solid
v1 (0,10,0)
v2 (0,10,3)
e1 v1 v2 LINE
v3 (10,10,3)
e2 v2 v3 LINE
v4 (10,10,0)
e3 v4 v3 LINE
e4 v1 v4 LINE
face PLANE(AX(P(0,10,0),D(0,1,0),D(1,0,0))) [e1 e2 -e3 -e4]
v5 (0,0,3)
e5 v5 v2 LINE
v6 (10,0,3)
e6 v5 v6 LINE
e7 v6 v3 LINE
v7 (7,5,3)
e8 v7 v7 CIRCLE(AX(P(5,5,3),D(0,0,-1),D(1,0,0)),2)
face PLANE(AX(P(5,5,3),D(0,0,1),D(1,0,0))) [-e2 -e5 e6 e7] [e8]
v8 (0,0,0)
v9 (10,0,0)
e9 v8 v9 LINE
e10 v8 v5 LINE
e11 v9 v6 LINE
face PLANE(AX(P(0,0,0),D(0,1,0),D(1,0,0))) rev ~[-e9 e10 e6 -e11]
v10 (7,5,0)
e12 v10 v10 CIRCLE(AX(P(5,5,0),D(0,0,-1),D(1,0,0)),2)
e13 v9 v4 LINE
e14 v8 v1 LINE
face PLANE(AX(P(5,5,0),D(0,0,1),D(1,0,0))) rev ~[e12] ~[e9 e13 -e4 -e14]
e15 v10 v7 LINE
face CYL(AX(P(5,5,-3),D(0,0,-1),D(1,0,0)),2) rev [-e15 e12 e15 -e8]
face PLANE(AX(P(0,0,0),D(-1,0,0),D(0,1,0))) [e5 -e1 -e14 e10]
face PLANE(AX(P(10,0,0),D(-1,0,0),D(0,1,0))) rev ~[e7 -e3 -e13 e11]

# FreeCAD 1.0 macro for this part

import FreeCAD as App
import Part
import Sketcher

V = App.Vector


def add_polygon(sketch, points):
    """Adds a closed chain of lines whose ends are joined by coincident constraints."""
    first, n = sketch.GeometryCount, len(points)
    for a, b in zip(points, points[1:] + points[:1]):
        sketch.addGeometry(Part.LineSegment(App.Vector(*a, 0), App.Vector(*b, 0)), False)
    for i in range(n):
        sketch.addConstraint(Sketcher.Constraint("Coincident", first + i, 2, first + (i + 1) % n, 1))

doc = App.newDocument("Part")
body = doc.addObject("PartDesign::Body", "Body")

# Sketch on XY plane
sketch1 = body.newObject("Sketcher::SketchObject", "Sketch")
sketch1.AttachmentSupport = (doc.getObject("XY_Plane"), [""])
sketch1.MapMode = "FlatFace"
sketch1.AttachmentOffset = App.Placement(V(0, 0, -3), App.Rotation())
sketch1.addGeometry(Part.Circle(V(5, 5, 0), V(0, 0, 1), 2), False)
sketch1.addConstraint(Sketcher.Constraint("Diameter", 0, 4.0))
sketch1.addConstraint(Sketcher.Constraint("DistanceX", -1, 1, 0, 3, 5.0))
sketch1.addConstraint(Sketcher.Constraint("DistanceY", -1, 1, 0, 3, 5.0))
pad1 = body.newObject("PartDesign::Pad", "Pad")
pad1.Profile = sketch1
pad1.Length = 10
body2 = doc.addObject("PartDesign::Body", "Body001")

# Sketch on XY plane
sketch2 = body2.newObject("Sketcher::SketchObject", "Sketch001")
sketch2.AttachmentSupport = (doc.getObject("XY_Plane001"), [""])
sketch2.MapMode = "FlatFace"
add_polygon(sketch2, [(0, 10), (0, 0), (10, 0), (10, 10)])  # lines 0-3
sketch2.addConstraint(Sketcher.Constraint("Vertical", 0))
sketch2.addConstraint(Sketcher.Constraint("Horizontal", 1))
sketch2.addConstraint(Sketcher.Constraint("Vertical", 2))
sketch2.addConstraint(Sketcher.Constraint("Horizontal", 3))
sketch2.addConstraint(Sketcher.Constraint("Coincident", 0, 2, -1, 1))
sketch2.addConstraint(Sketcher.Constraint("Equal", 3, 0))
sketch2.addConstraint(Sketcher.Constraint("DistanceX", 1, 1, 1, 2, 10.0))
pad2 = body2.newObject("PartDesign::Pad", "Pad001")
pad2.Profile = sketch2
pad2.Length = 3
doc.recompute()

boolean = body2.newObject("PartDesign::Boolean", "Boolean")
boolean.Type = "Cut"
boolean.addObjects([body])

doc.recompute()
